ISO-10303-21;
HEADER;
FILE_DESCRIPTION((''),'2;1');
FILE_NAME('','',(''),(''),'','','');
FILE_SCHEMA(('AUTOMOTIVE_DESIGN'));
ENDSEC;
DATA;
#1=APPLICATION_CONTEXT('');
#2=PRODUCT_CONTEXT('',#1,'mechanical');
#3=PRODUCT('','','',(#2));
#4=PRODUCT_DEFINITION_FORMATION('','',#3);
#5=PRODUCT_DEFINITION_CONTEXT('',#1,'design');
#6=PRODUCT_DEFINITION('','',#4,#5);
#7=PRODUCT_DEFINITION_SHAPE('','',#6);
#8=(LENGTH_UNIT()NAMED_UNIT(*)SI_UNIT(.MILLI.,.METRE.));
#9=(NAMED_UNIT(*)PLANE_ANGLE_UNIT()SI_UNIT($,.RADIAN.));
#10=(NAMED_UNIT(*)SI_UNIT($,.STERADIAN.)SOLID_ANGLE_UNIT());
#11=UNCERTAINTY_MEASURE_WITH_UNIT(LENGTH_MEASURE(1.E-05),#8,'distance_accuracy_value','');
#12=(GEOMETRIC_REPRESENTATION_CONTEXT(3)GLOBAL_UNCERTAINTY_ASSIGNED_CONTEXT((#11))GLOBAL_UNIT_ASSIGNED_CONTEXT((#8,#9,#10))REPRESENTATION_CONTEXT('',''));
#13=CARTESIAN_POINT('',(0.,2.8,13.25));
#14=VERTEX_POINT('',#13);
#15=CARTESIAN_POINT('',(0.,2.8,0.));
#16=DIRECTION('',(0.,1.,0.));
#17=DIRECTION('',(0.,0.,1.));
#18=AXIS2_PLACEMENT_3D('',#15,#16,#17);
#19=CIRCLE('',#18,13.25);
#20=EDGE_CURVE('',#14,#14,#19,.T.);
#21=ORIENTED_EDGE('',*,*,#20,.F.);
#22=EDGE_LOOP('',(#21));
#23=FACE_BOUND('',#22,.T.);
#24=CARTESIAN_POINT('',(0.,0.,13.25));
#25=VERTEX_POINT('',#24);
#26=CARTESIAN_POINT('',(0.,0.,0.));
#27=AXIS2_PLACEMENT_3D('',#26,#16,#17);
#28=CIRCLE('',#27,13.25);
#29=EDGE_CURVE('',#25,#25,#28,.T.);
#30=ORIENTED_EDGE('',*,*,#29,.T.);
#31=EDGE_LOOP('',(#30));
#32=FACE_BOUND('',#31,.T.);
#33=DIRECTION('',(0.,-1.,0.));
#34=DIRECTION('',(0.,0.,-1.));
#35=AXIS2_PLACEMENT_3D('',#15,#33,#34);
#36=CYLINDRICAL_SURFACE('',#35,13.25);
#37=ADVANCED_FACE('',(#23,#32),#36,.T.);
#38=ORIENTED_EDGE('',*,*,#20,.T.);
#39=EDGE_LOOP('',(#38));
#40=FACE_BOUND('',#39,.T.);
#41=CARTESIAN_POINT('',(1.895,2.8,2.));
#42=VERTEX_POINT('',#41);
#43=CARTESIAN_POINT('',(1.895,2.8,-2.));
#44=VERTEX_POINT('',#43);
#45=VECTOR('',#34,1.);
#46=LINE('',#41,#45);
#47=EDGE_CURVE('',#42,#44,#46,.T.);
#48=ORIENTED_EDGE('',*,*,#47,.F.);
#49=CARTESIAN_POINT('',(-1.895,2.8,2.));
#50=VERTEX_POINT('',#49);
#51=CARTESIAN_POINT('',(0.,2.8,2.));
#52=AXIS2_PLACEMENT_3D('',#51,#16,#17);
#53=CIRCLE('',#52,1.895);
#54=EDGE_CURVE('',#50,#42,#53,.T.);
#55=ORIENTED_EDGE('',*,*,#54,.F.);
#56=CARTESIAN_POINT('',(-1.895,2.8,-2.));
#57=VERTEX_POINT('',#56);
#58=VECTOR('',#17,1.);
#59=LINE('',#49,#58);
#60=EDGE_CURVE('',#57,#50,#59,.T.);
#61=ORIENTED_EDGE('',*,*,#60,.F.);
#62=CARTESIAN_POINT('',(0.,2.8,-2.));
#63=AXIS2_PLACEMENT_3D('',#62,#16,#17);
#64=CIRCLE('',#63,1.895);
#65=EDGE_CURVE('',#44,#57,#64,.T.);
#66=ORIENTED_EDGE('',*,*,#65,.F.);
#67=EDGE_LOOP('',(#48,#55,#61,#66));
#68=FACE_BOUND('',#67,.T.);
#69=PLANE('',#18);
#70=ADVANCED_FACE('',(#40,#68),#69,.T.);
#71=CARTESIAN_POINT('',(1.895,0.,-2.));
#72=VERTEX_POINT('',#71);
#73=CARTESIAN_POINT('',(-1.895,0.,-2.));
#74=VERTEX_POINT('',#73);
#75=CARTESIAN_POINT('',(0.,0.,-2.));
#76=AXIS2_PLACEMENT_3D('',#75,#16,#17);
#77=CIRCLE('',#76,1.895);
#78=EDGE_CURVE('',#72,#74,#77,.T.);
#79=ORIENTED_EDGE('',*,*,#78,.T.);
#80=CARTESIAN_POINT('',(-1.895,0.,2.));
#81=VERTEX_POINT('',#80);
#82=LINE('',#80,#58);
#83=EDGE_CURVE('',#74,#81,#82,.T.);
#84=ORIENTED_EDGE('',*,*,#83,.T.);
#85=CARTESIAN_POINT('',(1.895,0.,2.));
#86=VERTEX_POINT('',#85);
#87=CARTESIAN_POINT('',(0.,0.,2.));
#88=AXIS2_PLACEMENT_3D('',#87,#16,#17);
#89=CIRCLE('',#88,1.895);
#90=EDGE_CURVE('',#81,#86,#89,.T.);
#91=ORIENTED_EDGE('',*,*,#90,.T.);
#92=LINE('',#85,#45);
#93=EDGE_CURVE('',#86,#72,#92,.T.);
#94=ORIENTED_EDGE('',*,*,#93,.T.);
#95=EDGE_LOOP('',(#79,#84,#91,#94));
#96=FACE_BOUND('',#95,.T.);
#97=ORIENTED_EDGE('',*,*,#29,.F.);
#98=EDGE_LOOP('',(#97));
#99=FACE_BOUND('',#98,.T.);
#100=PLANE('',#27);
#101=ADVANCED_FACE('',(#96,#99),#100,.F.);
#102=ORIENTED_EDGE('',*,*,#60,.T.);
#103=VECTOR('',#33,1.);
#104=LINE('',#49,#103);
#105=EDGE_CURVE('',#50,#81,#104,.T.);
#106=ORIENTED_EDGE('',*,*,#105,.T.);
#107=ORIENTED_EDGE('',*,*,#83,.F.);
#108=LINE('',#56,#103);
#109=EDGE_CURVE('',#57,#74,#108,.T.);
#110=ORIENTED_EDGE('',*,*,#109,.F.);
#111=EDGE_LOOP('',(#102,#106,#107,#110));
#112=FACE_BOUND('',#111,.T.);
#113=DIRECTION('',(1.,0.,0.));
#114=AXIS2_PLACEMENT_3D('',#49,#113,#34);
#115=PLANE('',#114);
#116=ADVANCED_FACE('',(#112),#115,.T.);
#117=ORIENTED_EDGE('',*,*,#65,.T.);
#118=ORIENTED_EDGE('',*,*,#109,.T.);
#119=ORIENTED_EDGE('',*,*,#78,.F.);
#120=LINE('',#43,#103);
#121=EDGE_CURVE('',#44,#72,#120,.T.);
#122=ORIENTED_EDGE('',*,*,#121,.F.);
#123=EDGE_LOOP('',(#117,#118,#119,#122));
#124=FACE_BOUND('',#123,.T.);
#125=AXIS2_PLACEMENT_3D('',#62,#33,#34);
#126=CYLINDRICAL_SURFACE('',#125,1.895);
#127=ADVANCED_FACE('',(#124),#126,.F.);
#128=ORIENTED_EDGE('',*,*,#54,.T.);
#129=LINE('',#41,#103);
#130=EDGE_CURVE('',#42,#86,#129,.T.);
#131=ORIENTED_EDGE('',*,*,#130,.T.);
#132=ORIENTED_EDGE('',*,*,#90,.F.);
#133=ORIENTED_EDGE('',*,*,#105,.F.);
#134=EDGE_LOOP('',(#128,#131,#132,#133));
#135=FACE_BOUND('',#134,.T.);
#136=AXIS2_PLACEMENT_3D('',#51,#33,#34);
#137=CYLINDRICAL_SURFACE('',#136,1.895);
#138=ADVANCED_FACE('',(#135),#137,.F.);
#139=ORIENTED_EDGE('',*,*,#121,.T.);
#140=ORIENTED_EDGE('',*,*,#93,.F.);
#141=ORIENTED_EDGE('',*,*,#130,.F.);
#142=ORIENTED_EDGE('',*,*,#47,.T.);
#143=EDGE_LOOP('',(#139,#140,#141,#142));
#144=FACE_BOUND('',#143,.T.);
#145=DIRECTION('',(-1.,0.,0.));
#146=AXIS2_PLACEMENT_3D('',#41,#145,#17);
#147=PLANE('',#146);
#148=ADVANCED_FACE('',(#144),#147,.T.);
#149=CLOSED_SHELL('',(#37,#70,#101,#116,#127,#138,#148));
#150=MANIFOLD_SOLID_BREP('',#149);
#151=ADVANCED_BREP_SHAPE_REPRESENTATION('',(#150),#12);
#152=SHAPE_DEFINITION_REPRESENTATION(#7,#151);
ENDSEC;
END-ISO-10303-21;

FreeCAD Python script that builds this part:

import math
import FreeCAD as App
import Part
import Sketcher

doc = App.newDocument("Part")
body = doc.addObject("PartDesign::Body", "Body")

sketch1 = body.newObject("Sketcher::SketchObject", "Sketch")
sketch1.AttachmentSupport = (doc.getObject("XZ_Plane"), [""])
sketch1.MapMode = "FlatFace"
sketch1.addGeometry([
    Part.Circle(App.Vector(0, 0, 0), App.Vector(0, 0, 1), 13.2),
    Part.ArcOfCircle(Part.Circle(App.Vector(0, 2, 0), App.Vector(0, 0, 1), 1.9), math.radians(0), math.radians(180)),
    Part.LineSegment(App.Vector(-1.9, 2, 0), App.Vector(-1.9, -2, 0)),
    Part.ArcOfCircle(Part.Circle(App.Vector(0, -2, 0), App.Vector(0, 0, 1), 1.9), math.radians(180), math.radians(360)),
    Part.LineSegment(App.Vector(1.9, -2, 0), App.Vector(1.9, 2, 0)),
], False)
sketch1.addConstraint([
    Sketcher.Constraint("Tangent", 1, 2, 2, 1),
    Sketcher.Constraint("Tangent", 2, 2, 3, 1),
    Sketcher.Constraint("Tangent", 3, 2, 4, 1),
    Sketcher.Constraint("Tangent", 4, 2, 1, 1),
    Sketcher.Constraint("Vertical", 2),
    Sketcher.Constraint("Vertical", 4),
    Sketcher.Constraint("Coincident", 0, 3, -1, 1),
    Sketcher.Constraint("Symmetric", 1, 3, 3, 3, -1, 1),
    Sketcher.Constraint("Diameter", 0, 26.5),
    Sketcher.Constraint("DistanceY", 2, 2, 2, 1, 4.0),
    Sketcher.Constraint("Radius", 1, 1.895),
])
pad1 = body.newObject("PartDesign::Pad", "Pad")
pad1.Profile = sketch1
pad1.Length = 2.8
pad1.Reversed = True

doc.recompute()
